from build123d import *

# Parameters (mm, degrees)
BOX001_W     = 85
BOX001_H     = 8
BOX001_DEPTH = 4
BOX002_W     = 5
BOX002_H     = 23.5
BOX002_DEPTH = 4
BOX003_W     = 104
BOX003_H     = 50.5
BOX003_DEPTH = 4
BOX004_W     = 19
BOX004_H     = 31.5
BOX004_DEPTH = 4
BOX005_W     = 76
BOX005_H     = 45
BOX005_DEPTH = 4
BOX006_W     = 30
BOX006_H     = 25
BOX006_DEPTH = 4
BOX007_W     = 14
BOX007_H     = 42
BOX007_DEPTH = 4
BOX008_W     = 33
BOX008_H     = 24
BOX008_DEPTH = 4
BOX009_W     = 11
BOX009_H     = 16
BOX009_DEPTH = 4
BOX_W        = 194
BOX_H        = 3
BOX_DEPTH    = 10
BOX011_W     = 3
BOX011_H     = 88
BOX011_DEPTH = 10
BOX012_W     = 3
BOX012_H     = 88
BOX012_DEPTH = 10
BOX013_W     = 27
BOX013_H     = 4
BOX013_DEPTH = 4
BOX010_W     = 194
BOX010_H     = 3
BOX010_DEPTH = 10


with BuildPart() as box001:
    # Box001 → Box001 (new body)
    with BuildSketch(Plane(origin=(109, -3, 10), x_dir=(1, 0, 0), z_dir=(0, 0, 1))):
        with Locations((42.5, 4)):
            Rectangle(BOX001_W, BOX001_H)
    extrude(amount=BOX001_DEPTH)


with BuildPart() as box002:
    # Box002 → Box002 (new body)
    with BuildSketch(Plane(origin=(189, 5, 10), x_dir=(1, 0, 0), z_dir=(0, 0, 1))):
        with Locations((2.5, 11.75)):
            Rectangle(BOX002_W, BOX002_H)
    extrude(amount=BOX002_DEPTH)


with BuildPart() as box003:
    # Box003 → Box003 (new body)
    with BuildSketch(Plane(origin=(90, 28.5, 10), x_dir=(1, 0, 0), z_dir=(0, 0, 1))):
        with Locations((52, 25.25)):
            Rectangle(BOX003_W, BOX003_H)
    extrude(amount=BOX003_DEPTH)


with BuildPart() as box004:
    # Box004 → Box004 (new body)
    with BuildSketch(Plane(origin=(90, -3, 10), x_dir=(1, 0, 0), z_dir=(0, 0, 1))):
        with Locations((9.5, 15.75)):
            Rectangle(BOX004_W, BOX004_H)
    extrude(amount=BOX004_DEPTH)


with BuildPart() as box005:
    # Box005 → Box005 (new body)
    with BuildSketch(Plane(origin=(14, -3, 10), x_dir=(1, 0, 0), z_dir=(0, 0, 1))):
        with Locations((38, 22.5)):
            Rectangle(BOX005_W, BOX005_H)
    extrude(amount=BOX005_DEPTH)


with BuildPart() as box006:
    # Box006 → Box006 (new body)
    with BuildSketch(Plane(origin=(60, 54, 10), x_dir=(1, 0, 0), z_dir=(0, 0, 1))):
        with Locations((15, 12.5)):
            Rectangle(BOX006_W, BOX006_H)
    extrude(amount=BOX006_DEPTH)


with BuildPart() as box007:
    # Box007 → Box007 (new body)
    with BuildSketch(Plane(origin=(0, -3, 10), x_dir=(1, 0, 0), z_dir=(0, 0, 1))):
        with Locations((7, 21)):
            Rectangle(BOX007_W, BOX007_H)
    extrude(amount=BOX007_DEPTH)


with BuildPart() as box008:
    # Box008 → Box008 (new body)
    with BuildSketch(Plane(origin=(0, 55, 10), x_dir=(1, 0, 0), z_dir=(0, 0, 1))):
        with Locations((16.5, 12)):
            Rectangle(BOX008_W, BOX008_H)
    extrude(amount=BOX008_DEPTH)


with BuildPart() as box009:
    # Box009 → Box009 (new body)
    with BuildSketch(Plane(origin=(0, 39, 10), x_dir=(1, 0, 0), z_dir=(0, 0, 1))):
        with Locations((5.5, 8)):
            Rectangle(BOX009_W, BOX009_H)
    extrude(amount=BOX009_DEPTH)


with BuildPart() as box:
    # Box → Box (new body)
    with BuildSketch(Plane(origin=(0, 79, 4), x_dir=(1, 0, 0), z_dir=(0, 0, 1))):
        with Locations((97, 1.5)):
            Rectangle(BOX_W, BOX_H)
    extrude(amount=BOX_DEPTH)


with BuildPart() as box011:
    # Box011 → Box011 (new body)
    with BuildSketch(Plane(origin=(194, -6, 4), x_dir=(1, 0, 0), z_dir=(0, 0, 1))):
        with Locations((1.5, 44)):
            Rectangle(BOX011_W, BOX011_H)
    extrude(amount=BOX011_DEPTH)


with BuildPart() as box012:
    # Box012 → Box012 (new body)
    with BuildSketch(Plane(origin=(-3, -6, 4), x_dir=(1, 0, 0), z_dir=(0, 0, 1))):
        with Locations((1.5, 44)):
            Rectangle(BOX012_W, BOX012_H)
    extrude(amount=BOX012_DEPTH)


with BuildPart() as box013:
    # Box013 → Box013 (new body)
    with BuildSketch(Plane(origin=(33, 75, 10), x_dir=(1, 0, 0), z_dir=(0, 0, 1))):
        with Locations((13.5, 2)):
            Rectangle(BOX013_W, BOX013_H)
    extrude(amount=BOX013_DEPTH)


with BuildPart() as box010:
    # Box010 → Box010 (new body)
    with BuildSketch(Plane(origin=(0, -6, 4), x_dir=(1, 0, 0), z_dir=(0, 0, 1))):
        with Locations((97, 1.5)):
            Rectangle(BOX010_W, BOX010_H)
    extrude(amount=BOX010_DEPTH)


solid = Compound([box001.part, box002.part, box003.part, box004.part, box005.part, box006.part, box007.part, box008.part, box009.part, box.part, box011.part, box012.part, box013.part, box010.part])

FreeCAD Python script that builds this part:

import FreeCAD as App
import Part
import Sketcher

V = App.Vector
Q = App.Units.Quantity

doc = App.newDocument("Part")
body = doc.addObject("PartDesign::Body", "Body")

# Sketch on XY plane
sketch1 = body.newObject("Sketcher::SketchObject", "Sketch")
sketch1.AttachmentSupport = (doc.getObject("XY_Plane"), [""])
sketch1.MapMode = "FlatFace"
sketch1.AttachmentOffset = App.Placement(V(0, 0, 10), App.Rotation())
sketch1.addGeometry(Part.LineSegment(V(109, 5, 0), V(109, -3, 0)), False)
sketch1.addGeometry(Part.LineSegment(V(109, -3, 0), V(194, -3, 0)), False)
sketch1.addGeometry(Part.LineSegment(V(194, -3, 0), V(194, 5, 0)), False)
sketch1.addGeometry(Part.LineSegment(V(194, 5, 0), V(109, 5, 0)), False)
sketch1.addConstraint(Sketcher.Constraint("Coincident", 0, 2, 1, 1))
sketch1.addConstraint(Sketcher.Constraint("Coincident", 1, 2, 2, 1))
sketch1.addConstraint(Sketcher.Constraint("Coincident", 2, 2, 3, 1))
sketch1.addConstraint(Sketcher.Constraint("Coincident", 3, 2, 0, 1))
sketch1.addConstraint(Sketcher.Constraint("Vertical", 0))
sketch1.addConstraint(Sketcher.Constraint("Horizontal", 1))
sketch1.addConstraint(Sketcher.Constraint("Vertical", 2))
sketch1.addConstraint(Sketcher.Constraint("Horizontal", 3))
sketch1.addConstraint(Sketcher.Constraint("DistanceX", 1, 1, 1, 2, Q("85 mm")))
sketch1.addConstraint(Sketcher.Constraint("DistanceY", 0, 2, 0, 1, Q("8 mm")))
sketch1.addConstraint(Sketcher.Constraint("DistanceX", -1, 1, 0, 2, Q("109 mm")))
sketch1.addConstraint(Sketcher.Constraint("DistanceY", 0, 2, -1, 1, Q("3 mm")))
pad1 = body.newObject("PartDesign::Pad", "Pad")
pad1.Profile = sketch1
pad1.Length = 4
body2 = doc.addObject("PartDesign::Body", "Body001")

# Sketch on XY plane
sketch2 = body2.newObject("Sketcher::SketchObject", "Sketch001")
sketch2.AttachmentSupport = (doc.getObject("XY_Plane001"), [""])
sketch2.MapMode = "FlatFace"
sketch2.AttachmentOffset = App.Placement(V(0, 0, 10), App.Rotation())
sketch2.addGeometry(Part.LineSegment(V(189, 28, 0), V(189, 5, 0)), False)
sketch2.addGeometry(Part.LineSegment(V(189, 5, 0), V(194, 5, 0)), False)
sketch2.addGeometry(Part.LineSegment(V(194, 5, 0), V(194, 28, 0)), False)
sketch2.addGeometry(Part.LineSegment(V(194, 28, 0), V(189, 28, 0)), False)
sketch2.addConstraint(Sketcher.Constraint("Coincident", 0, 2, 1, 1))
sketch2.addConstraint(Sketcher.Constraint("Coincident", 1, 2, 2, 1))
sketch2.addConstraint(Sketcher.Constraint("Coincident", 2, 2, 3, 1))
sketch2.addConstraint(Sketcher.Constraint("Coincident", 3, 2, 0, 1))
sketch2.addConstraint(Sketcher.Constraint("Vertical", 0))
sketch2.addConstraint(Sketcher.Constraint("Horizontal", 1))
sketch2.addConstraint(Sketcher.Constraint("Vertical", 2))
sketch2.addConstraint(Sketcher.Constraint("Horizontal", 3))
sketch2.addConstraint(Sketcher.Constraint("DistanceX", 1, 1, 1, 2, Q("5 mm")))
sketch2.addConstraint(Sketcher.Constraint("DistanceY", 0, 2, 0, 1, Q("23.5 mm")))
sketch2.addConstraint(Sketcher.Constraint("DistanceX", -1, 1, 0, 2, Q("189 mm")))
sketch2.addConstraint(Sketcher.Constraint("DistanceY", -1, 1, 0, 2, Q("5 mm")))
pad2 = body2.newObject("PartDesign::Pad", "Pad001")
pad2.Profile = sketch2
pad2.Length = 4
body3 = doc.addObject("PartDesign::Body", "Body002")

# Sketch on XY plane
sketch3 = body3.newObject("Sketcher::SketchObject", "Sketch002")
sketch3.AttachmentSupport = (doc.getObject("XY_Plane002"), [""])
sketch3.MapMode = "FlatFace"
sketch3.AttachmentOffset = App.Placement(V(0, 0, 10), App.Rotation())
sketch3.addGeometry(Part.LineSegment(V(90, 79, 0), V(90, 28, 0)), False)
sketch3.addGeometry(Part.LineSegment(V(90, 28, 0), V(194, 28, 0)), False)
sketch3.addGeometry(Part.LineSegment(V(194, 28, 0), V(194, 79, 0)), False)
sketch3.addGeometry(Part.LineSegment(V(194, 79, 0), V(90, 79, 0)), False)
sketch3.addConstraint(Sketcher.Constraint("Coincident", 0, 2, 1, 1))
sketch3.addConstraint(Sketcher.Constraint("Coincident", 1, 2, 2, 1))
sketch3.addConstraint(Sketcher.Constraint("Coincident", 2, 2, 3, 1))
sketch3.addConstraint(Sketcher.Constraint("Coincident", 3, 2, 0, 1))
sketch3.addConstraint(Sketcher.Constraint("Vertical", 0))
sketch3.addConstraint(Sketcher.Constraint("Horizontal", 1))
sketch3.addConstraint(Sketcher.Constraint("Vertical", 2))
sketch3.addConstraint(Sketcher.Constraint("Horizontal", 3))
sketch3.addConstraint(Sketcher.Constraint("DistanceX", 1, 1, 1, 2, Q("104 mm")))
sketch3.addConstraint(Sketcher.Constraint("DistanceY", 0, 2, 0, 1, Q("50.5 mm")))
sketch3.addConstraint(Sketcher.Constraint("DistanceX", -1, 1, 0, 2, Q("90 mm")))
sketch3.addConstraint(Sketcher.Constraint("DistanceY", -1, 1, 2, 2, Q("79 mm")))
pad3 = body3.newObject("PartDesign::Pad", "Pad002")
pad3.Profile = sketch3
pad3.Length = 4
body4 = doc.addObject("PartDesign::Body", "Body003")

# Sketch on XY plane
sketch4 = body4.newObject("Sketcher::SketchObject", "Sketch003")
sketch4.AttachmentSupport = (doc.getObject("XY_Plane003"), [""])
sketch4.MapMode = "FlatFace"
sketch4.AttachmentOffset = App.Placement(V(0, 0, 10), App.Rotation())
sketch4.addGeometry(Part.LineSegment(V(90, 28, 0), V(90, -3, 0)), False)
sketch4.addGeometry(Part.LineSegment(V(90, -3, 0), V(109, -3, 0)), False)
sketch4.addGeometry(Part.LineSegment(V(109, -3, 0), V(109, 28, 0)), False)
sketch4.addGeometry(Part.LineSegment(V(109, 28, 0), V(90, 28, 0)), False)
sketch4.addConstraint(Sketcher.Constraint("Coincident", 0, 2, 1, 1))
sketch4.addConstraint(Sketcher.Constraint("Coincident", 1, 2, 2, 1))
sketch4.addConstraint(Sketcher.Constraint("Coincident", 2, 2, 3, 1))
sketch4.addConstraint(Sketcher.Constraint("Coincident", 3, 2, 0, 1))
sketch4.addConstraint(Sketcher.Constraint("Vertical", 0))
sketch4.addConstraint(Sketcher.Constraint("Horizontal", 1))
sketch4.addConstraint(Sketcher.Constraint("Vertical", 2))
sketch4.addConstraint(Sketcher.Constraint("Horizontal", 3))
sketch4.addConstraint(Sketcher.Constraint("DistanceX", 1, 1, 1, 2, Q("19 mm")))
sketch4.addConstraint(Sketcher.Constraint("DistanceY", 0, 2, 0, 1, Q("31.5 mm")))
sketch4.addConstraint(Sketcher.Constraint("DistanceX", -1, 1, 0, 2, Q("90 mm")))
sketch4.addConstraint(Sketcher.Constraint("DistanceY", 0, 2, -1, 1, Q("3 mm")))
pad4 = body4.newObject("PartDesign::Pad", "Pad003")
pad4.Profile = sketch4
pad4.Length = 4
body5 = doc.addObject("PartDesign::Body", "Body004")

# Sketch on XY plane
sketch5 = body5.newObject("Sketcher::SketchObject", "Sketch004")
sketch5.AttachmentSupport = (doc.getObject("XY_Plane004"), [""])
sketch5.MapMode = "FlatFace"
sketch5.AttachmentOffset = App.Placement(V(0, 0, 10), App.Rotation())
sketch5.addGeometry(Part.LineSegment(V(14, 42, 0), V(14, -3, 0)), False)
sketch5.addGeometry(Part.LineSegment(V(14, -3, 0), V(90, -3, 0)), False)
sketch5.addGeometry(Part.LineSegment(V(90, -3, 0), V(90, 42, 0)), False)
sketch5.addGeometry(Part.LineSegment(V(90, 42, 0), V(14, 42, 0)), False)
sketch5.addConstraint(Sketcher.Constraint("Coincident", 0, 2, 1, 1))
sketch5.addConstraint(Sketcher.Constraint("Coincident", 1, 2, 2, 1))
sketch5.addConstraint(Sketcher.Constraint("Coincident", 2, 2, 3, 1))
sketch5.addConstraint(Sketcher.Constraint("Coincident", 3, 2, 0, 1))
sketch5.addConstraint(Sketcher.Constraint("Vertical", 0))
sketch5.addConstraint(Sketcher.Constraint("Horizontal", 1))
sketch5.addConstraint(Sketcher.Constraint("Vertical", 2))
sketch5.addConstraint(Sketcher.Constraint("Horizontal", 3))
sketch5.addConstraint(Sketcher.Constraint("DistanceX", 1, 1, 1, 2, Q("76 mm")))
sketch5.addConstraint(Sketcher.Constraint("DistanceY", 0, 2, 0, 1, Q("45 mm")))
sketch5.addConstraint(Sketcher.Constraint("DistanceX", -1, 1, 0, 2, Q("14 mm")))
sketch5.addConstraint(Sketcher.Constraint("DistanceY", 0, 2, -1, 1, Q("3 mm")))
pad5 = body5.newObject("PartDesign::Pad", "Pad004")
pad5.Profile = sketch5
pad5.Length = 4
body6 = doc.addObject("PartDesign::Body", "Body005")

# Sketch on XY plane
sketch6 = body6.newObject("Sketcher::SketchObject", "Sketch005")
sketch6.AttachmentSupport = (doc.getObject("XY_Plane005"), [""])
sketch6.MapMode = "FlatFace"
sketch6.AttachmentOffset = App.Placement(V(0, 0, 10), App.Rotation())
sketch6.addGeometry(Part.LineSegment(V(60, 79, 0), V(60, 54, 0)), False)
sketch6.addGeometry(Part.LineSegment(V(60, 54, 0), V(90, 54, 0)), False)
sketch6.addGeometry(Part.LineSegment(V(90, 54, 0), V(90, 79, 0)), False)
sketch6.addGeometry(Part.LineSegment(V(90, 79, 0), V(60, 79, 0)), False)
sketch6.addConstraint(Sketcher.Constraint("Coincident", 0, 2, 1, 1))
sketch6.addConstraint(Sketcher.Constraint("Coincident", 1, 2, 2, 1))
sketch6.addConstraint(Sketcher.Constraint("Coincident", 2, 2, 3, 1))
sketch6.addConstraint(Sketcher.Constraint("Coincident", 3, 2, 0, 1))
sketch6.addConstraint(Sketcher.Constraint("Vertical", 0))
sketch6.addConstraint(Sketcher.Constraint("Horizontal", 1))
sketch6.addConstraint(Sketcher.Constraint("Vertical", 2))
sketch6.addConstraint(Sketcher.Constraint("Horizontal", 3))
sketch6.addConstraint(Sketcher.Constraint("DistanceX", 1, 1, 1, 2, Q("30 mm")))
sketch6.addConstraint(Sketcher.Constraint("DistanceY", 0, 2, 0, 1, Q("25 mm")))
sketch6.addConstraint(Sketcher.Constraint("DistanceX", -1, 1, 0, 2, Q("60 mm")))
sketch6.addConstraint(Sketcher.Constraint("DistanceY", -1, 1, 0, 2, Q("54 mm")))
pad6 = body6.newObject("PartDesign::Pad", "Pad005")
pad6.Profile = sketch6
pad6.Length = 4
body7 = doc.addObject("PartDesign::Body", "Body006")

# Sketch on XY plane
sketch7 = body7.newObject("Sketcher::SketchObject", "Sketch006")
sketch7.AttachmentSupport = (doc.getObject("XY_Plane006"), [""])
sketch7.MapMode = "FlatFace"
sketch7.AttachmentOffset = App.Placement(V(0, 0, 10), App.Rotation())
sketch7.addGeometry(Part.LineSegment(V(0, 39, 0), V(0, -3, 0)), False)
sketch7.addGeometry(Part.LineSegment(V(0, -3, 0), V(14, -3, 0)), False)
sketch7.addGeometry(Part.LineSegment(V(14, -3, 0), V(14, 39, 0)), False)
sketch7.addGeometry(Part.LineSegment(V(14, 39, 0), V(0, 39, 0)), False)
sketch7.addConstraint(Sketcher.Constraint("Coincident", 0, 2, 1, 1))
sketch7.addConstraint(Sketcher.Constraint("Coincident", 1, 2, 2, 1))
sketch7.addConstraint(Sketcher.Constraint("Coincident", 2, 2, 3, 1))
sketch7.addConstraint(Sketcher.Constraint("Coincident", 3, 2, 0, 1))
sketch7.addConstraint(Sketcher.Constraint("Vertical", 0))
sketch7.addConstraint(Sketcher.Constraint("Horizontal", 1))
sketch7.addConstraint(Sketcher.Constraint("Vertical", 2))
sketch7.addConstraint(Sketcher.Constraint("Horizontal", 3))
sketch7.addConstraint(Sketcher.Constraint("PointOnObject", 0, 2, -2))
sketch7.addConstraint(Sketcher.Constraint("DistanceX", 1, 1, 1, 2, Q("14 mm")))
sketch7.addConstraint(Sketcher.Constraint("DistanceY", 0, 2, 0, 1, Q("42 mm")))
sketch7.addConstraint(Sketcher.Constraint("DistanceY", 0, 2, -1, 1, Q("3 mm")))
pad7 = body7.newObject("PartDesign::Pad", "Pad006")
pad7.Profile = sketch7
pad7.Length = 4
body8 = doc.addObject("PartDesign::Body", "Body007")

# Sketch on XY plane
sketch8 = body8.newObject("Sketcher::SketchObject", "Sketch007")
sketch8.AttachmentSupport = (doc.getObject("XY_Plane007"), [""])
sketch8.MapMode = "FlatFace"
sketch8.AttachmentOffset = App.Placement(V(0, 0, 10), App.Rotation())
sketch8.addGeometry(Part.LineSegment(V(0, 79, 0), V(0, 55, 0)), False)
sketch8.addGeometry(Part.LineSegment(V(0, 55, 0), V(33, 55, 0)), False)
sketch8.addGeometry(Part.LineSegment(V(33, 55, 0), V(33, 79, 0)), False)
sketch8.addGeometry(Part.LineSegment(V(33, 79, 0), V(0, 79, 0)), False)
sketch8.addConstraint(Sketcher.Constraint("Coincident", 0, 2, 1, 1))
sketch8.addConstraint(Sketcher.Constraint("Coincident", 1, 2, 2, 1))
sketch8.addConstraint(Sketcher.Constraint("Coincident", 2, 2, 3, 1))
sketch8.addConstraint(Sketcher.Constraint("Coincident", 3, 2, 0, 1))
sketch8.addConstraint(Sketcher.Constraint("Vertical", 0))
sketch8.addConstraint(Sketcher.Constraint("Horizontal", 1))
sketch8.addConstraint(Sketcher.Constraint("Vertical", 2))
sketch8.addConstraint(Sketcher.Constraint("Horizontal", 3))
sketch8.addConstraint(Sketcher.Constraint("PointOnObject", 0, 2, -2))
sketch8.addConstraint(Sketcher.Constraint("DistanceX", 1, 1, 1, 2, Q("33 mm")))
sketch8.addConstraint(Sketcher.Constraint("DistanceY", 0, 2, 0, 1, Q("24 mm")))
sketch8.addConstraint(Sketcher.Constraint("DistanceY", -1, 1, 0, 2, Q("55 mm")))
pad8 = body8.newObject("PartDesign::Pad", "Pad007")
pad8.Profile = sketch8
pad8.Length = 4
body9 = doc.addObject("PartDesign::Body", "Body008")

# Sketch on XY plane
sketch9 = body9.newObject("Sketcher::SketchObject", "Sketch008")
sketch9.AttachmentSupport = (doc.getObject("XY_Plane008"), [""])
sketch9.MapMode = "FlatFace"
sketch9.AttachmentOffset = App.Placement(V(0, 0, 10), App.Rotation())
sketch9.addGeometry(Part.LineSegment(V(0, 55, 0), V(0, 39, 0)), False)
sketch9.addGeometry(Part.LineSegment(V(0, 39, 0), V(11, 39, 0)), False)
sketch9.addGeometry(Part.LineSegment(V(11, 39, 0), V(11, 55, 0)), False)
sketch9.addGeometry(Part.LineSegment(V(11, 55, 0), V(0, 55, 0)), False)
sketch9.addConstraint(Sketcher.Constraint("Coincident", 0, 2, 1, 1))
sketch9.addConstraint(Sketcher.Constraint("Coincident", 1, 2, 2, 1))
sketch9.addConstraint(Sketcher.Constraint("Coincident", 2, 2, 3, 1))
sketch9.addConstraint(Sketcher.Constraint("Coincident", 3, 2, 0, 1))
sketch9.addConstraint(Sketcher.Constraint("Vertical", 0))
sketch9.addConstraint(Sketcher.Constraint("Horizontal", 1))
sketch9.addConstraint(Sketcher.Constraint("Vertical", 2))
sketch9.addConstraint(Sketcher.Constraint("Horizontal", 3))
sketch9.addConstraint(Sketcher.Constraint("PointOnObject", 0, 2, -2))
sketch9.addConstraint(Sketcher.Constraint("DistanceX", 1, 1, 1, 2, Q("11 mm")))
sketch9.addConstraint(Sketcher.Constraint("DistanceY", 0, 2, 0, 1, Q("16 mm")))
sketch9.addConstraint(Sketcher.Constraint("DistanceY", -1, 1, 0, 2, Q("39 mm")))
pad9 = body9.newObject("PartDesign::Pad", "Pad008")
pad9.Profile = sketch9
pad9.Length = 4
body10 = doc.addObject("PartDesign::Body", "Body009")

# Sketch on XY plane
sketch10 = body10.newObject("Sketcher::SketchObject", "Sketch009")
sketch10.AttachmentSupport = (doc.getObject("XY_Plane009"), [""])
sketch10.MapMode = "FlatFace"
sketch10.AttachmentOffset = App.Placement(V(0, 0, 4), App.Rotation())
sketch10.addGeometry(Part.LineSegment(V(0, 82, 0), V(0, 79, 0)), False)
sketch10.addGeometry(Part.LineSegment(V(0, 79, 0), V(194, 79, 0)), False)
sketch10.addGeometry(Part.LineSegment(V(194, 79, 0), V(194, 82, 0)), False)
sketch10.addGeometry(Part.LineSegment(V(194, 82, 0), V(0, 82, 0)), False)
sketch10.addConstraint(Sketcher.Constraint("Coincident", 0, 2, 1, 1))
sketch10.addConstraint(Sketcher.Constraint("Coincident", 1, 2, 2, 1))
sketch10.addConstraint(Sketcher.Constraint("Coincident", 2, 2, 3, 1))
sketch10.addConstraint(Sketcher.Constraint("Coincident", 3, 2, 0, 1))
sketch10.addConstraint(Sketcher.Constraint("Vertical", 0))
sketch10.addConstraint(Sketcher.Constraint("Horizontal", 1))
sketch10.addConstraint(Sketcher.Constraint("Vertical", 2))
sketch10.addConstraint(Sketcher.Constraint("Horizontal", 3))
sketch10.addConstraint(Sketcher.Constraint("PointOnObject", 0, 2, -2))
sketch10.addConstraint(Sketcher.Constraint("DistanceX", 1, 1, 1, 2, Q("194 mm")))
sketch10.addConstraint(Sketcher.Constraint("DistanceY", 0, 2, 0, 1, Q("3 mm")))
sketch10.addConstraint(Sketcher.Constraint("DistanceY", -1, 1, 0, 2, Q("79 mm")))
pad10 = body10.newObject("PartDesign::Pad", "Pad009")
pad10.Profile = sketch10
pad10.Length = 10
body11 = doc.addObject("PartDesign::Body", "Body010")

# Sketch on XY plane
sketch11 = body11.newObject("Sketcher::SketchObject", "Sketch010")
sketch11.AttachmentSupport = (doc.getObject("XY_Plane010"), [""])
sketch11.MapMode = "FlatFace"
sketch11.AttachmentOffset = App.Placement(V(0, 0, 4), App.Rotation())
sketch11.addGeometry(Part.LineSegment(V(194, 82, 0), V(194, -6, 0)), False)
sketch11.addGeometry(Part.LineSegment(V(194, -6, 0), V(197, -6, 0)), False)
sketch11.addGeometry(Part.LineSegment(V(197, -6, 0), V(197, 82, 0)), False)
sketch11.addGeometry(Part.LineSegment(V(197, 82, 0), V(194, 82, 0)), False)
sketch11.addConstraint(Sketcher.Constraint("Coincident", 0, 2, 1, 1))
sketch11.addConstraint(Sketcher.Constraint("Coincident", 1, 2, 2, 1))
sketch11.addConstraint(Sketcher.Constraint("Coincident", 2, 2, 3, 1))
sketch11.addConstraint(Sketcher.Constraint("Coincident", 3, 2, 0, 1))
sketch11.addConstraint(Sketcher.Constraint("Vertical", 0))
sketch11.addConstraint(Sketcher.Constraint("Horizontal", 1))
sketch11.addConstraint(Sketcher.Constraint("Vertical", 2))
sketch11.addConstraint(Sketcher.Constraint("Horizontal", 3))
sketch11.addConstraint(Sketcher.Constraint("DistanceX", 1, 1, 1, 2, Q("3 mm")))
sketch11.addConstraint(Sketcher.Constraint("DistanceY", 0, 2, 0, 1, Q("88 mm")))
sketch11.addConstraint(Sketcher.Constraint("DistanceX", -1, 1, 0, 2, Q("194 mm")))
sketch11.addConstraint(Sketcher.Constraint("DistanceY", 0, 2, -1, 1, Q("6 mm")))
pad11 = body11.newObject("PartDesign::Pad", "Pad010")
pad11.Profile = sketch11
pad11.Length = 10
body12 = doc.addObject("PartDesign::Body", "Body011")

# Sketch on XY plane
sketch12 = body12.newObject("Sketcher::SketchObject", "Sketch011")
sketch12.AttachmentSupport = (doc.getObject("XY_Plane011"), [""])
sketch12.MapMode = "FlatFace"
sketch12.AttachmentOffset = App.Placement(V(0, 0, 4), App.Rotation())
sketch12.addGeometry(Part.LineSegment(V(-3, 82, 0), V(-3, -6, 0)), False)
sketch12.addGeometry(Part.LineSegment(V(-3, -6, 0), V(0, -6, 0)), False)
sketch12.addGeometry(Part.LineSegment(V(0, -6, 0), V(0, 82, 0)), False)
sketch12.addGeometry(Part.LineSegment(V(0, 82, 0), V(-3, 82, 0)), False)
sketch12.addConstraint(Sketcher.Constraint("Coincident", 0, 2, 1, 1))
sketch12.addConstraint(Sketcher.Constraint("Coincident", 1, 2, 2, 1))
sketch12.addConstraint(Sketcher.Constraint("Coincident", 2, 2, 3, 1))
sketch12.addConstraint(Sketcher.Constraint("Coincident", 3, 2, 0, 1))
sketch12.addConstraint(Sketcher.Constraint("Vertical", 0))
sketch12.addConstraint(Sketcher.Constraint("Horizontal", 1))
sketch12.addConstraint(Sketcher.Constraint("Vertical", 2))
sketch12.addConstraint(Sketcher.Constraint("Horizontal", 3))
sketch12.addConstraint(Sketcher.Constraint("PointOnObject", 1, 2, -2))
sketch12.addConstraint(Sketcher.Constraint("DistanceX", 1, 1, 1, 2, Q("3 mm")))
sketch12.addConstraint(Sketcher.Constraint("DistanceY", 0, 2, 0, 1, Q("88 mm")))
sketch12.addConstraint(Sketcher.Constraint("DistanceY", 0, 2, -1, 1, Q("6 mm")))
pad12 = body12.newObject("PartDesign::Pad", "Pad011")
pad12.Profile = sketch12
pad12.Length = 10
body13 = doc.addObject("PartDesign::Body", "Body012")

# Sketch on XY plane
sketch13 = body13.newObject("Sketcher::SketchObject", "Sketch012")
sketch13.AttachmentSupport = (doc.getObject("XY_Plane012"), [""])
sketch13.MapMode = "FlatFace"
sketch13.AttachmentOffset = App.Placement(V(0, 0, 10), App.Rotation())
sketch13.addGeometry(Part.LineSegment(V(33, 79, 0), V(33, 75, 0)), False)
sketch13.addGeometry(Part.LineSegment(V(33, 75, 0), V(60, 75, 0)), False)
sketch13.addGeometry(Part.LineSegment(V(60, 75, 0), V(60, 79, 0)), False)
sketch13.addGeometry(Part.LineSegment(V(60, 79, 0), V(33, 79, 0)), False)
sketch13.addConstraint(Sketcher.Constraint("Coincident", 0, 2, 1, 1))
sketch13.addConstraint(Sketcher.Constraint("Coincident", 1, 2, 2, 1))
sketch13.addConstraint(Sketcher.Constraint("Coincident", 2, 2, 3, 1))
sketch13.addConstraint(Sketcher.Constraint("Coincident", 3, 2, 0, 1))
sketch13.addConstraint(Sketcher.Constraint("Vertical", 0))
sketch13.addConstraint(Sketcher.Constraint("Horizontal", 1))
sketch13.addConstraint(Sketcher.Constraint("Vertical", 2))
sketch13.addConstraint(Sketcher.Constraint("Horizontal", 3))
sketch13.addConstraint(Sketcher.Constraint("DistanceX", 1, 1, 1, 2, Q("27 mm")))
sketch13.addConstraint(Sketcher.Constraint("DistanceY", 0, 2, 0, 1, Q("4 mm")))
sketch13.addConstraint(Sketcher.Constraint("DistanceX", -1, 1, 0, 2, Q("33 mm")))
sketch13.addConstraint(Sketcher.Constraint("DistanceY", -1, 1, 0, 2, Q("75 mm")))
pad13 = body13.newObject("PartDesign::Pad", "Pad012")
pad13.Profile = sketch13
pad13.Length = 4
body14 = doc.addObject("PartDesign::Body", "Body013")

# Sketch on XY plane
sketch14 = body14.newObject("Sketcher::SketchObject", "Sketch013")
sketch14.AttachmentSupport = (doc.getObject("XY_Plane013"), [""])
sketch14.MapMode = "FlatFace"
sketch14.AttachmentOffset = App.Placement(V(0, 0, 4), App.Rotation())
sketch14.addGeometry(Part.LineSegment(V(0, -3, 0), V(0, -6, 0)), False)
sketch14.addGeometry(Part.LineSegment(V(0, -6, 0), V(194, -6, 0)), False)
sketch14.addGeometry(Part.LineSegment(V(194, -6, 0), V(194, -3, 0)), False)
sketch14.addGeometry(Part.LineSegment(V(194, -3, 0), V(0, -3, 0)), False)
sketch14.addConstraint(Sketcher.Constraint("Coincident", 0, 2, 1, 1))
sketch14.addConstraint(Sketcher.Constraint("Coincident", 1, 2, 2, 1))
sketch14.addConstraint(Sketcher.Constraint("Coincident", 2, 2, 3, 1))
sketch14.addConstraint(Sketcher.Constraint("Coincident", 3, 2, 0, 1))
sketch14.addConstraint(Sketcher.Constraint("Vertical", 0))
sketch14.addConstraint(Sketcher.Constraint("Horizontal", 1))
sketch14.addConstraint(Sketcher.Constraint("Vertical", 2))
sketch14.addConstraint(Sketcher.Constraint("Horizontal", 3))
sketch14.addConstraint(Sketcher.Constraint("PointOnObject", 0, 2, -2))
sketch14.addConstraint(Sketcher.Constraint("DistanceX", 1, 1, 1, 2, Q("194 mm")))
sketch14.addConstraint(Sketcher.Constraint("DistanceY", 0, 2, 0, 1, Q("3 mm")))
sketch14.addConstraint(Sketcher.Constraint("DistanceY", 0, 2, -1, 1, Q("6 mm")))
pad14 = body14.newObject("PartDesign::Pad", "Pad013")
pad14.Profile = sketch14
pad14.Length = 10

doc.recompute()
